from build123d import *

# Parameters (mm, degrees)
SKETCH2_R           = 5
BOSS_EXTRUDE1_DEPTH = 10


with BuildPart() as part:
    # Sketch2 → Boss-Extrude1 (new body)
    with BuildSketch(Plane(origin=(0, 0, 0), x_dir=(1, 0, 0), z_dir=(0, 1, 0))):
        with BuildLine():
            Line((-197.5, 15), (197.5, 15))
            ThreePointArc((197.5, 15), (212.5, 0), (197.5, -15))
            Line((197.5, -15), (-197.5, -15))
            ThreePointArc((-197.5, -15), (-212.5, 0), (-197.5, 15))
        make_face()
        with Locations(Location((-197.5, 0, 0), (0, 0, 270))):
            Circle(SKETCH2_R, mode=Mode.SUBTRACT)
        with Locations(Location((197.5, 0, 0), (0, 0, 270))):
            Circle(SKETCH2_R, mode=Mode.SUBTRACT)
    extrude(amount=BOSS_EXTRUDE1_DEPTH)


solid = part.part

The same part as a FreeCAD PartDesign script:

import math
import FreeCAD as App
import Part
import Sketcher
from FreeCAD import Vector
Q = App.Units.Quantity

doc = App.newDocument("Part")
body = doc.addObject("PartDesign::Body", "Body")

# Sketch on XZ plane
sketch1 = doc.addObject("Sketcher::SketchObject", "Sketch")
body.addObject(sketch1)
sketch1.AttachmentSupport = (doc.XZ_Plane, [""])
sketch1.MapMode = "FlatFace"
sketch1.addGeometry(Part.LineSegment(Vector(198, -15, 0), Vector(-198, -15, 0)), False)
sketch1.addGeometry(Part.ArcOfCircle(Part.Circle(Vector(-198, 0, 0), Vector(0, 0, 1), 15), math.radians(90), math.radians(270)), False)
sketch1.addGeometry(Part.LineSegment(Vector(-198, 15, 0), Vector(198, 15, 0)), False)
sketch1.addGeometry(Part.ArcOfCircle(Part.Circle(Vector(198, 0, 0), Vector(0, 0, 1), 15), math.radians(-90), math.radians(90)), False)
sketch1.addGeometry(Part.Circle(Vector(198, 0, 0), Vector(0, 0, 1), 5), False)
sketch1.addGeometry(Part.Circle(Vector(-198, 0, 0), Vector(0, 0, 1), 5), False)
sketch1.addConstraint(Sketcher.Constraint("Tangent", 0, 2, 1, 2))
sketch1.addConstraint(Sketcher.Constraint("Tangent", 1, 1, 2, 1))
sketch1.addConstraint(Sketcher.Constraint("Tangent", 2, 2, 3, 2))
sketch1.addConstraint(Sketcher.Constraint("Tangent", 3, 1, 0, 1))
sketch1.addConstraint(Sketcher.Constraint("Horizontal", 0))
sketch1.addConstraint(Sketcher.Constraint("Horizontal", 2))
sketch1.addConstraint(Sketcher.Constraint("Coincident", 4, 3, 3, 3))
sketch1.addConstraint(Sketcher.Constraint("Coincident", 5, 3, 1, 3))
sketch1.addConstraint(Sketcher.Constraint("Equal", 4, 5))
sketch1.addConstraint(Sketcher.Constraint("Symmetric", 1, 3, 3, 3, -1, 1))
sketch1.addConstraint(Sketcher.Constraint("Diameter", 4, Q("10 mm")))
sketch1.addConstraint(Sketcher.Constraint("Radius", 1, Q("15 mm")))
sketch1.addConstraint(Sketcher.Constraint("DistanceX", 0, 2, 0, 1, Q("395 mm")))
pad1 = doc.addObject("PartDesign::Pad", "Pad")
body.addObject(pad1)
pad1.Profile = sketch1
pad1.Length = 10
pad1.Reversed = True

doc.recompute()
